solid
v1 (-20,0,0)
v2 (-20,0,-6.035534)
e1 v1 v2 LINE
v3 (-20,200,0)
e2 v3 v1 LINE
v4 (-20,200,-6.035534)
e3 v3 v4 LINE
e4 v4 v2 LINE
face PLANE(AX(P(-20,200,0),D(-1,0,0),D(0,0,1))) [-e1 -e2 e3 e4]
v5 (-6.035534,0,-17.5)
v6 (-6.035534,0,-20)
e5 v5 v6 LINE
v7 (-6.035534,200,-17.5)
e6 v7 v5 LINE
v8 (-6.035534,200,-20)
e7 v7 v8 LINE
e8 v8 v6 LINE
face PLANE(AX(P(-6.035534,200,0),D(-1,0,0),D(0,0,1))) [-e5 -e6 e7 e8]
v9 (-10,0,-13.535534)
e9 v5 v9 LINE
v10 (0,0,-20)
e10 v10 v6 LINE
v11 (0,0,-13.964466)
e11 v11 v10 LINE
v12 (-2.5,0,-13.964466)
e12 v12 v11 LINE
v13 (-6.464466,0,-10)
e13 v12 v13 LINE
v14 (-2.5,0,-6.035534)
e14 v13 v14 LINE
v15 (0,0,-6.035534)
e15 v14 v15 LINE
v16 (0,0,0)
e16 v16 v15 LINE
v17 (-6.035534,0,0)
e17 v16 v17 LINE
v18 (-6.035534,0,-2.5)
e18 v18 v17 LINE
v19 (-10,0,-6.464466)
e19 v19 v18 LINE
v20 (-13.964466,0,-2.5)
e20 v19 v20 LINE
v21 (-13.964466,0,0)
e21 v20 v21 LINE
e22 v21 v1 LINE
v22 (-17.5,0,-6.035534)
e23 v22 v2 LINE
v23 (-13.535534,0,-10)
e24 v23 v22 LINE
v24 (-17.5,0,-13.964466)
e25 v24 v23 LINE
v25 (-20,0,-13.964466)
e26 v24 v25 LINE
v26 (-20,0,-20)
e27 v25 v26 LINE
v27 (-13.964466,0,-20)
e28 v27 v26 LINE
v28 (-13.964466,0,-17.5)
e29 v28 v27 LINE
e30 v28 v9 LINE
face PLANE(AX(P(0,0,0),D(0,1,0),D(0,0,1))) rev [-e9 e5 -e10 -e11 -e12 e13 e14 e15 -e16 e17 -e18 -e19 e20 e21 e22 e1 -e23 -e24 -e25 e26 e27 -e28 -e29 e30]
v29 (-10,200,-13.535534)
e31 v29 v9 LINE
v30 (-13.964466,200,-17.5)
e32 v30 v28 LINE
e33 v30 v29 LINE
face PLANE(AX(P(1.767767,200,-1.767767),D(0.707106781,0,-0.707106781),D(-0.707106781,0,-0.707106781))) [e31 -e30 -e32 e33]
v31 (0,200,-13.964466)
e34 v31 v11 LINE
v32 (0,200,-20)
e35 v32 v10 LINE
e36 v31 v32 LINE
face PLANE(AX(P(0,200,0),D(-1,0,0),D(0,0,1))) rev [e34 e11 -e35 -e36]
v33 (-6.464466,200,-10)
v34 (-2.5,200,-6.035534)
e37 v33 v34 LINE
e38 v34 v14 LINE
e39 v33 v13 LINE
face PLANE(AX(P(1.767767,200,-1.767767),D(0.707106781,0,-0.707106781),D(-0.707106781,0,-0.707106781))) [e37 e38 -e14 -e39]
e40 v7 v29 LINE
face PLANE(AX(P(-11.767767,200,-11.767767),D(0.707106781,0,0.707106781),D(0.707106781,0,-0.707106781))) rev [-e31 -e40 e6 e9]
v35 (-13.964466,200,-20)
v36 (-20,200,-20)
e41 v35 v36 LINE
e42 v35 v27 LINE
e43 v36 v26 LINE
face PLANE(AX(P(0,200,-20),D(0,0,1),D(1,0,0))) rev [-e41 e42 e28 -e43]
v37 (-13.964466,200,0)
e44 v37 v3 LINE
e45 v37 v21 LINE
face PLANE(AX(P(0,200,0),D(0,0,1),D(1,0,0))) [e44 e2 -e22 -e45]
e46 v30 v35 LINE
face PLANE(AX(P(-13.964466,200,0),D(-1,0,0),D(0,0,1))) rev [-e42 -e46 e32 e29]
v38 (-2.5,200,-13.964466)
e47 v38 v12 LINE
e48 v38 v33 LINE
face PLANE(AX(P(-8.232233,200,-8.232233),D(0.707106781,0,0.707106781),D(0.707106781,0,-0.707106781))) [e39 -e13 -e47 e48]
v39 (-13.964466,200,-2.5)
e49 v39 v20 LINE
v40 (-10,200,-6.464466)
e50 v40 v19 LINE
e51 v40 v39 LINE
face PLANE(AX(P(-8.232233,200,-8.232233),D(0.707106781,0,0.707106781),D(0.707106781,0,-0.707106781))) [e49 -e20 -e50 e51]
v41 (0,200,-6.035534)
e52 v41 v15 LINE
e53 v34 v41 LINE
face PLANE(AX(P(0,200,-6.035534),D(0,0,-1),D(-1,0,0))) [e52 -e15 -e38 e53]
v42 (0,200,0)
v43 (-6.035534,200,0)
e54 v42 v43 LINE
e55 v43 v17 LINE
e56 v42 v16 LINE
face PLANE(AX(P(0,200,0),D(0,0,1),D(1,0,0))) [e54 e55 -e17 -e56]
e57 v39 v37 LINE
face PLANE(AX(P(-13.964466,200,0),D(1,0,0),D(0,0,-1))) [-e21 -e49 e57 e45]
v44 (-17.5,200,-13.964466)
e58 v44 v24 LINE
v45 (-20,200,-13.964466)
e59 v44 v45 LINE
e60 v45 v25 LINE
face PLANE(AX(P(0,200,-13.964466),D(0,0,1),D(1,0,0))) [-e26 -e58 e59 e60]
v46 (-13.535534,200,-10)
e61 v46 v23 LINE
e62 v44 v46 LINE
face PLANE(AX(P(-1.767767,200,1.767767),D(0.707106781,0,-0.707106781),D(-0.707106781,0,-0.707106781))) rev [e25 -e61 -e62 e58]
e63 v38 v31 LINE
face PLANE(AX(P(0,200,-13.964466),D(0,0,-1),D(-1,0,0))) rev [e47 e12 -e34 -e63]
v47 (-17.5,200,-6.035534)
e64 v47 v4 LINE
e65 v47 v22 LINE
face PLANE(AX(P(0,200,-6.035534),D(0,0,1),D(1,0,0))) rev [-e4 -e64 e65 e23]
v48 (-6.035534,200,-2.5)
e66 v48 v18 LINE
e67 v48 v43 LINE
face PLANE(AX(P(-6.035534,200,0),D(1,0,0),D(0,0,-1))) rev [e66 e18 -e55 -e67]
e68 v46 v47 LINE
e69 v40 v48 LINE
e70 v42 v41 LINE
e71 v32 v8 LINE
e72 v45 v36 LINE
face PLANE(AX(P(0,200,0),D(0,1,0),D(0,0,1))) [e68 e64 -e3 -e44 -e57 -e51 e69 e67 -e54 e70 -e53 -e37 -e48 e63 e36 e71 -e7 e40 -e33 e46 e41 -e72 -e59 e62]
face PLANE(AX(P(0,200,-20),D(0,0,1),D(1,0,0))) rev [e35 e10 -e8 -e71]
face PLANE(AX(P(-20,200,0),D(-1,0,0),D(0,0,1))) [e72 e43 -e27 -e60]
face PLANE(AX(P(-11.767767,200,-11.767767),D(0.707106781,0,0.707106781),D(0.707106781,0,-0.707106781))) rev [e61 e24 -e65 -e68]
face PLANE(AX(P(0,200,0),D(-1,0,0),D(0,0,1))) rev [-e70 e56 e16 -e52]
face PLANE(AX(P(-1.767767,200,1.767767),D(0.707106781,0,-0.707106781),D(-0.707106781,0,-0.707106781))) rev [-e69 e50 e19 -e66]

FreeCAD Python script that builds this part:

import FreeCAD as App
import Part
import Sketcher

V = App.Vector

doc = App.newDocument("Part")
body = doc.addObject("PartDesign::Body", "Body")

# Sketch on XZ plane
sketch1 = body.newObject("Sketcher::SketchObject", "Sketch")
sketch1.AttachmentSupport = (doc.getObject("XZ_Plane"), [""])
sketch1.MapMode = "FlatFace"
sketch1.addGeometry(Part.LineSegment(V(-6, -2.5, 0), V(-6, 0, 0)), False)
sketch1.addGeometry(Part.LineSegment(V(-6, 0, 0), V(0, 0, 0)), False)
sketch1.addGeometry(Part.LineSegment(V(0, 0, 0), V(0, -6, 0)), False)
sketch1.addGeometry(Part.LineSegment(V(0, -6, 0), V(-2.5, -6, 0)), False)
sketch1.addGeometry(Part.LineSegment(V(-2.5, -6, 0), V(-6.5, -10, 0)), False)
sketch1.addGeometry(Part.LineSegment(V(-6.5, -10, 0), V(-2.5, -14, 0)), False)
sketch1.addGeometry(Part.LineSegment(V(-2.5, -14, 0), V(0, -14, 0)), False)
sketch1.addGeometry(Part.LineSegment(V(0, -14, 0), V(0, -20, 0)), False)
sketch1.addGeometry(Part.LineSegment(V(0, -20, 0), V(-6, -20, 0)), False)
sketch1.addGeometry(Part.LineSegment(V(-6, -20, 0), V(-6, -17.5, 0)), False)
sketch1.addGeometry(Part.LineSegment(V(-6, -17.5, 0), V(-10, -13.5, 0)), False)
sketch1.addGeometry(Part.LineSegment(V(-10, -13.5, 0), V(-14, -17.5, 0)), False)
sketch1.addGeometry(Part.LineSegment(V(-14, -17.5, 0), V(-14, -20, 0)), False)
sketch1.addGeometry(Part.LineSegment(V(-14, -20, 0), V(-20, -20, 0)), False)
sketch1.addGeometry(Part.LineSegment(V(-20, -20, 0), V(-20, -14, 0)), False)
sketch1.addGeometry(Part.LineSegment(V(-20, -14, 0), V(-17.5, -14, 0)), False)
sketch1.addGeometry(Part.LineSegment(V(-17.5, -14, 0), V(-13.5, -10, 0)), False)
sketch1.addGeometry(Part.LineSegment(V(-13.5, -10, 0), V(-17.5, -6, 0)), False)
sketch1.addGeometry(Part.LineSegment(V(-17.5, -6, 0), V(-20, -6, 0)), False)
sketch1.addGeometry(Part.LineSegment(V(-20, -6, 0), V(-20, 0, 0)), False)
sketch1.addGeometry(Part.LineSegment(V(-20, 0, 0), V(-14, 0, 0)), False)
sketch1.addGeometry(Part.LineSegment(V(-14, 0, 0), V(-14, -2.5, 0)), False)
sketch1.addGeometry(Part.LineSegment(V(-14, -2.5, 0), V(-10, -6.5, 0)), False)
sketch1.addGeometry(Part.LineSegment(V(-10, -6.5, 0), V(-6, -2.5, 0)), False)
sketch1.addConstraint(Sketcher.Constraint("Coincident", 0, 2, 1, 1))
sketch1.addConstraint(Sketcher.Constraint("Coincident", 1, 2, 2, 1))
sketch1.addConstraint(Sketcher.Constraint("Coincident", 2, 2, 3, 1))
sketch1.addConstraint(Sketcher.Constraint("Coincident", 3, 2, 4, 1))
sketch1.addConstraint(Sketcher.Constraint("Coincident", 4, 2, 5, 1))
sketch1.addConstraint(Sketcher.Constraint("Coincident", 5, 2, 6, 1))
sketch1.addConstraint(Sketcher.Constraint("Coincident", 6, 2, 7, 1))
sketch1.addConstraint(Sketcher.Constraint("Coincident", 7, 2, 8, 1))
sketch1.addConstraint(Sketcher.Constraint("Coincident", 8, 2, 9, 1))
sketch1.addConstraint(Sketcher.Constraint("Coincident", 9, 2, 10, 1))
sketch1.addConstraint(Sketcher.Constraint("Coincident", 10, 2, 11, 1))
sketch1.addConstraint(Sketcher.Constraint("Coincident", 11, 2, 12, 1))
sketch1.addConstraint(Sketcher.Constraint("Coincident", 12, 2, 13, 1))
sketch1.addConstraint(Sketcher.Constraint("Coincident", 13, 2, 14, 1))
sketch1.addConstraint(Sketcher.Constraint("Coincident", 14, 2, 15, 1))
sketch1.addConstraint(Sketcher.Constraint("Coincident", 15, 2, 16, 1))
sketch1.addConstraint(Sketcher.Constraint("Coincident", 16, 2, 17, 1))
sketch1.addConstraint(Sketcher.Constraint("Coincident", 17, 2, 18, 1))
sketch1.addConstraint(Sketcher.Constraint("Coincident", 18, 2, 19, 1))
sketch1.addConstraint(Sketcher.Constraint("Coincident", 19, 2, 20, 1))
sketch1.addConstraint(Sketcher.Constraint("Coincident", 20, 2, 21, 1))
sketch1.addConstraint(Sketcher.Constraint("Coincident", 21, 2, 22, 1))
sketch1.addConstraint(Sketcher.Constraint("Coincident", 22, 2, 23, 1))
sketch1.addConstraint(Sketcher.Constraint("Coincident", 23, 2, 0, 1))
sketch1.addConstraint(Sketcher.Constraint("Vertical", 0))
sketch1.addConstraint(Sketcher.Constraint("Horizontal", 1))
sketch1.addConstraint(Sketcher.Constraint("Vertical", 2))
sketch1.addConstraint(Sketcher.Constraint("Horizontal", 3))
sketch1.addConstraint(Sketcher.Constraint("Horizontal", 6))
sketch1.addConstraint(Sketcher.Constraint("Vertical", 7))
sketch1.addConstraint(Sketcher.Constraint("Horizontal", 8))
sketch1.addConstraint(Sketcher.Constraint("Vertical", 9))
sketch1.addConstraint(Sketcher.Constraint("Vertical", 12))
sketch1.addConstraint(Sketcher.Constraint("Horizontal", 13))
sketch1.addConstraint(Sketcher.Constraint("Vertical", 14))
sketch1.addConstraint(Sketcher.Constraint("Horizontal", 15))
sketch1.addConstraint(Sketcher.Constraint("Horizontal", 18))
sketch1.addConstraint(Sketcher.Constraint("Vertical", 19))
sketch1.addConstraint(Sketcher.Constraint("Horizontal", 20))
sketch1.addConstraint(Sketcher.Constraint("Vertical", 21))
sketch1.addConstraint(Sketcher.Constraint("Coincident", 1, 2, -1, 1))
sketch1.addConstraint(Sketcher.Constraint("PointOnObject", 6, 2, -2))
sketch1.addConstraint(Sketcher.Constraint("PointOnObject", 19, 2, -1))
sketch1.addConstraint(Sketcher.Constraint("Perpendicular", 4, 5))
sketch1.addConstraint(Sketcher.Constraint("Parallel", 5, 10))
sketch1.addConstraint(Sketcher.Constraint("Perpendicular", 10, 11))
sketch1.addConstraint(Sketcher.Constraint("Parallel", 11, 16))
sketch1.addConstraint(Sketcher.Constraint("Perpendicular", 16, 17))
sketch1.addConstraint(Sketcher.Constraint("Parallel", 17, 22))
sketch1.addConstraint(Sketcher.Constraint("Perpendicular", 22, 23))
sketch1.addConstraint(Sketcher.Constraint("Horizontal", 9, 2, 11, 2))
sketch1.addConstraint(Sketcher.Constraint("Horizontal", 8, 2, 12, 2))
sketch1.addConstraint(Sketcher.Constraint("Horizontal", 6, 2, 14, 2))
sketch1.addConstraint(Sketcher.Constraint("Horizontal", 4, 2, 16, 2))
sketch1.addConstraint(Sketcher.Constraint("Horizontal", 3, 2, 17, 2))
sketch1.addConstraint(Sketcher.Constraint("Horizontal", 21, 2, 23, 2))
sketch1.addConstraint(Sketcher.Constraint("Vertical", 3, 2, 5, 2))
sketch1.addConstraint(Sketcher.Constraint("Vertical", 0, 2, 8, 2))
sketch1.addConstraint(Sketcher.Constraint("Vertical", 15, 2, 17, 2))
sketch1.addConstraint(Sketcher.Constraint("Vertical", 14, 2, 18, 2))
sketch1.addConstraint(Sketcher.Constraint("Vertical", 12, 2, 20, 2))
sketch1.addConstraint(Sketcher.Constraint("Equal", 8, 13))
sketch1.addConstraint(Sketcher.Constraint("Equal", 6, 15))
sketch1.addConstraint(Sketcher.Constraint("Equal", 18, 0))
sketch1.addConstraint(Sketcher.Constraint("Equal", 20, 2))
sketch1.addConstraint(Sketcher.Constraint("Equal", 2, 7))
sketch1.addConstraint(Sketcher.Constraint("Equal", 0, 9))
sketch1.addConstraint(Sketcher.Constraint("Equal", 5, 10))
sketch1.addConstraint(Sketcher.Constraint("DistanceX", 3, 2, 3, 1, 2.5))
sketch1.addConstraint(Sketcher.Constraint("DistanceY", 4, 2, -1, 1, 10.0))
sketch1.addConstraint(Sketcher.Constraint("Distance", 4, 5.606602))
pad1 = body.newObject("PartDesign::Pad", "Pad")
pad1.Profile = sketch1
pad1.Length = 200
pad1.Reversed = True

doc.recompute()
